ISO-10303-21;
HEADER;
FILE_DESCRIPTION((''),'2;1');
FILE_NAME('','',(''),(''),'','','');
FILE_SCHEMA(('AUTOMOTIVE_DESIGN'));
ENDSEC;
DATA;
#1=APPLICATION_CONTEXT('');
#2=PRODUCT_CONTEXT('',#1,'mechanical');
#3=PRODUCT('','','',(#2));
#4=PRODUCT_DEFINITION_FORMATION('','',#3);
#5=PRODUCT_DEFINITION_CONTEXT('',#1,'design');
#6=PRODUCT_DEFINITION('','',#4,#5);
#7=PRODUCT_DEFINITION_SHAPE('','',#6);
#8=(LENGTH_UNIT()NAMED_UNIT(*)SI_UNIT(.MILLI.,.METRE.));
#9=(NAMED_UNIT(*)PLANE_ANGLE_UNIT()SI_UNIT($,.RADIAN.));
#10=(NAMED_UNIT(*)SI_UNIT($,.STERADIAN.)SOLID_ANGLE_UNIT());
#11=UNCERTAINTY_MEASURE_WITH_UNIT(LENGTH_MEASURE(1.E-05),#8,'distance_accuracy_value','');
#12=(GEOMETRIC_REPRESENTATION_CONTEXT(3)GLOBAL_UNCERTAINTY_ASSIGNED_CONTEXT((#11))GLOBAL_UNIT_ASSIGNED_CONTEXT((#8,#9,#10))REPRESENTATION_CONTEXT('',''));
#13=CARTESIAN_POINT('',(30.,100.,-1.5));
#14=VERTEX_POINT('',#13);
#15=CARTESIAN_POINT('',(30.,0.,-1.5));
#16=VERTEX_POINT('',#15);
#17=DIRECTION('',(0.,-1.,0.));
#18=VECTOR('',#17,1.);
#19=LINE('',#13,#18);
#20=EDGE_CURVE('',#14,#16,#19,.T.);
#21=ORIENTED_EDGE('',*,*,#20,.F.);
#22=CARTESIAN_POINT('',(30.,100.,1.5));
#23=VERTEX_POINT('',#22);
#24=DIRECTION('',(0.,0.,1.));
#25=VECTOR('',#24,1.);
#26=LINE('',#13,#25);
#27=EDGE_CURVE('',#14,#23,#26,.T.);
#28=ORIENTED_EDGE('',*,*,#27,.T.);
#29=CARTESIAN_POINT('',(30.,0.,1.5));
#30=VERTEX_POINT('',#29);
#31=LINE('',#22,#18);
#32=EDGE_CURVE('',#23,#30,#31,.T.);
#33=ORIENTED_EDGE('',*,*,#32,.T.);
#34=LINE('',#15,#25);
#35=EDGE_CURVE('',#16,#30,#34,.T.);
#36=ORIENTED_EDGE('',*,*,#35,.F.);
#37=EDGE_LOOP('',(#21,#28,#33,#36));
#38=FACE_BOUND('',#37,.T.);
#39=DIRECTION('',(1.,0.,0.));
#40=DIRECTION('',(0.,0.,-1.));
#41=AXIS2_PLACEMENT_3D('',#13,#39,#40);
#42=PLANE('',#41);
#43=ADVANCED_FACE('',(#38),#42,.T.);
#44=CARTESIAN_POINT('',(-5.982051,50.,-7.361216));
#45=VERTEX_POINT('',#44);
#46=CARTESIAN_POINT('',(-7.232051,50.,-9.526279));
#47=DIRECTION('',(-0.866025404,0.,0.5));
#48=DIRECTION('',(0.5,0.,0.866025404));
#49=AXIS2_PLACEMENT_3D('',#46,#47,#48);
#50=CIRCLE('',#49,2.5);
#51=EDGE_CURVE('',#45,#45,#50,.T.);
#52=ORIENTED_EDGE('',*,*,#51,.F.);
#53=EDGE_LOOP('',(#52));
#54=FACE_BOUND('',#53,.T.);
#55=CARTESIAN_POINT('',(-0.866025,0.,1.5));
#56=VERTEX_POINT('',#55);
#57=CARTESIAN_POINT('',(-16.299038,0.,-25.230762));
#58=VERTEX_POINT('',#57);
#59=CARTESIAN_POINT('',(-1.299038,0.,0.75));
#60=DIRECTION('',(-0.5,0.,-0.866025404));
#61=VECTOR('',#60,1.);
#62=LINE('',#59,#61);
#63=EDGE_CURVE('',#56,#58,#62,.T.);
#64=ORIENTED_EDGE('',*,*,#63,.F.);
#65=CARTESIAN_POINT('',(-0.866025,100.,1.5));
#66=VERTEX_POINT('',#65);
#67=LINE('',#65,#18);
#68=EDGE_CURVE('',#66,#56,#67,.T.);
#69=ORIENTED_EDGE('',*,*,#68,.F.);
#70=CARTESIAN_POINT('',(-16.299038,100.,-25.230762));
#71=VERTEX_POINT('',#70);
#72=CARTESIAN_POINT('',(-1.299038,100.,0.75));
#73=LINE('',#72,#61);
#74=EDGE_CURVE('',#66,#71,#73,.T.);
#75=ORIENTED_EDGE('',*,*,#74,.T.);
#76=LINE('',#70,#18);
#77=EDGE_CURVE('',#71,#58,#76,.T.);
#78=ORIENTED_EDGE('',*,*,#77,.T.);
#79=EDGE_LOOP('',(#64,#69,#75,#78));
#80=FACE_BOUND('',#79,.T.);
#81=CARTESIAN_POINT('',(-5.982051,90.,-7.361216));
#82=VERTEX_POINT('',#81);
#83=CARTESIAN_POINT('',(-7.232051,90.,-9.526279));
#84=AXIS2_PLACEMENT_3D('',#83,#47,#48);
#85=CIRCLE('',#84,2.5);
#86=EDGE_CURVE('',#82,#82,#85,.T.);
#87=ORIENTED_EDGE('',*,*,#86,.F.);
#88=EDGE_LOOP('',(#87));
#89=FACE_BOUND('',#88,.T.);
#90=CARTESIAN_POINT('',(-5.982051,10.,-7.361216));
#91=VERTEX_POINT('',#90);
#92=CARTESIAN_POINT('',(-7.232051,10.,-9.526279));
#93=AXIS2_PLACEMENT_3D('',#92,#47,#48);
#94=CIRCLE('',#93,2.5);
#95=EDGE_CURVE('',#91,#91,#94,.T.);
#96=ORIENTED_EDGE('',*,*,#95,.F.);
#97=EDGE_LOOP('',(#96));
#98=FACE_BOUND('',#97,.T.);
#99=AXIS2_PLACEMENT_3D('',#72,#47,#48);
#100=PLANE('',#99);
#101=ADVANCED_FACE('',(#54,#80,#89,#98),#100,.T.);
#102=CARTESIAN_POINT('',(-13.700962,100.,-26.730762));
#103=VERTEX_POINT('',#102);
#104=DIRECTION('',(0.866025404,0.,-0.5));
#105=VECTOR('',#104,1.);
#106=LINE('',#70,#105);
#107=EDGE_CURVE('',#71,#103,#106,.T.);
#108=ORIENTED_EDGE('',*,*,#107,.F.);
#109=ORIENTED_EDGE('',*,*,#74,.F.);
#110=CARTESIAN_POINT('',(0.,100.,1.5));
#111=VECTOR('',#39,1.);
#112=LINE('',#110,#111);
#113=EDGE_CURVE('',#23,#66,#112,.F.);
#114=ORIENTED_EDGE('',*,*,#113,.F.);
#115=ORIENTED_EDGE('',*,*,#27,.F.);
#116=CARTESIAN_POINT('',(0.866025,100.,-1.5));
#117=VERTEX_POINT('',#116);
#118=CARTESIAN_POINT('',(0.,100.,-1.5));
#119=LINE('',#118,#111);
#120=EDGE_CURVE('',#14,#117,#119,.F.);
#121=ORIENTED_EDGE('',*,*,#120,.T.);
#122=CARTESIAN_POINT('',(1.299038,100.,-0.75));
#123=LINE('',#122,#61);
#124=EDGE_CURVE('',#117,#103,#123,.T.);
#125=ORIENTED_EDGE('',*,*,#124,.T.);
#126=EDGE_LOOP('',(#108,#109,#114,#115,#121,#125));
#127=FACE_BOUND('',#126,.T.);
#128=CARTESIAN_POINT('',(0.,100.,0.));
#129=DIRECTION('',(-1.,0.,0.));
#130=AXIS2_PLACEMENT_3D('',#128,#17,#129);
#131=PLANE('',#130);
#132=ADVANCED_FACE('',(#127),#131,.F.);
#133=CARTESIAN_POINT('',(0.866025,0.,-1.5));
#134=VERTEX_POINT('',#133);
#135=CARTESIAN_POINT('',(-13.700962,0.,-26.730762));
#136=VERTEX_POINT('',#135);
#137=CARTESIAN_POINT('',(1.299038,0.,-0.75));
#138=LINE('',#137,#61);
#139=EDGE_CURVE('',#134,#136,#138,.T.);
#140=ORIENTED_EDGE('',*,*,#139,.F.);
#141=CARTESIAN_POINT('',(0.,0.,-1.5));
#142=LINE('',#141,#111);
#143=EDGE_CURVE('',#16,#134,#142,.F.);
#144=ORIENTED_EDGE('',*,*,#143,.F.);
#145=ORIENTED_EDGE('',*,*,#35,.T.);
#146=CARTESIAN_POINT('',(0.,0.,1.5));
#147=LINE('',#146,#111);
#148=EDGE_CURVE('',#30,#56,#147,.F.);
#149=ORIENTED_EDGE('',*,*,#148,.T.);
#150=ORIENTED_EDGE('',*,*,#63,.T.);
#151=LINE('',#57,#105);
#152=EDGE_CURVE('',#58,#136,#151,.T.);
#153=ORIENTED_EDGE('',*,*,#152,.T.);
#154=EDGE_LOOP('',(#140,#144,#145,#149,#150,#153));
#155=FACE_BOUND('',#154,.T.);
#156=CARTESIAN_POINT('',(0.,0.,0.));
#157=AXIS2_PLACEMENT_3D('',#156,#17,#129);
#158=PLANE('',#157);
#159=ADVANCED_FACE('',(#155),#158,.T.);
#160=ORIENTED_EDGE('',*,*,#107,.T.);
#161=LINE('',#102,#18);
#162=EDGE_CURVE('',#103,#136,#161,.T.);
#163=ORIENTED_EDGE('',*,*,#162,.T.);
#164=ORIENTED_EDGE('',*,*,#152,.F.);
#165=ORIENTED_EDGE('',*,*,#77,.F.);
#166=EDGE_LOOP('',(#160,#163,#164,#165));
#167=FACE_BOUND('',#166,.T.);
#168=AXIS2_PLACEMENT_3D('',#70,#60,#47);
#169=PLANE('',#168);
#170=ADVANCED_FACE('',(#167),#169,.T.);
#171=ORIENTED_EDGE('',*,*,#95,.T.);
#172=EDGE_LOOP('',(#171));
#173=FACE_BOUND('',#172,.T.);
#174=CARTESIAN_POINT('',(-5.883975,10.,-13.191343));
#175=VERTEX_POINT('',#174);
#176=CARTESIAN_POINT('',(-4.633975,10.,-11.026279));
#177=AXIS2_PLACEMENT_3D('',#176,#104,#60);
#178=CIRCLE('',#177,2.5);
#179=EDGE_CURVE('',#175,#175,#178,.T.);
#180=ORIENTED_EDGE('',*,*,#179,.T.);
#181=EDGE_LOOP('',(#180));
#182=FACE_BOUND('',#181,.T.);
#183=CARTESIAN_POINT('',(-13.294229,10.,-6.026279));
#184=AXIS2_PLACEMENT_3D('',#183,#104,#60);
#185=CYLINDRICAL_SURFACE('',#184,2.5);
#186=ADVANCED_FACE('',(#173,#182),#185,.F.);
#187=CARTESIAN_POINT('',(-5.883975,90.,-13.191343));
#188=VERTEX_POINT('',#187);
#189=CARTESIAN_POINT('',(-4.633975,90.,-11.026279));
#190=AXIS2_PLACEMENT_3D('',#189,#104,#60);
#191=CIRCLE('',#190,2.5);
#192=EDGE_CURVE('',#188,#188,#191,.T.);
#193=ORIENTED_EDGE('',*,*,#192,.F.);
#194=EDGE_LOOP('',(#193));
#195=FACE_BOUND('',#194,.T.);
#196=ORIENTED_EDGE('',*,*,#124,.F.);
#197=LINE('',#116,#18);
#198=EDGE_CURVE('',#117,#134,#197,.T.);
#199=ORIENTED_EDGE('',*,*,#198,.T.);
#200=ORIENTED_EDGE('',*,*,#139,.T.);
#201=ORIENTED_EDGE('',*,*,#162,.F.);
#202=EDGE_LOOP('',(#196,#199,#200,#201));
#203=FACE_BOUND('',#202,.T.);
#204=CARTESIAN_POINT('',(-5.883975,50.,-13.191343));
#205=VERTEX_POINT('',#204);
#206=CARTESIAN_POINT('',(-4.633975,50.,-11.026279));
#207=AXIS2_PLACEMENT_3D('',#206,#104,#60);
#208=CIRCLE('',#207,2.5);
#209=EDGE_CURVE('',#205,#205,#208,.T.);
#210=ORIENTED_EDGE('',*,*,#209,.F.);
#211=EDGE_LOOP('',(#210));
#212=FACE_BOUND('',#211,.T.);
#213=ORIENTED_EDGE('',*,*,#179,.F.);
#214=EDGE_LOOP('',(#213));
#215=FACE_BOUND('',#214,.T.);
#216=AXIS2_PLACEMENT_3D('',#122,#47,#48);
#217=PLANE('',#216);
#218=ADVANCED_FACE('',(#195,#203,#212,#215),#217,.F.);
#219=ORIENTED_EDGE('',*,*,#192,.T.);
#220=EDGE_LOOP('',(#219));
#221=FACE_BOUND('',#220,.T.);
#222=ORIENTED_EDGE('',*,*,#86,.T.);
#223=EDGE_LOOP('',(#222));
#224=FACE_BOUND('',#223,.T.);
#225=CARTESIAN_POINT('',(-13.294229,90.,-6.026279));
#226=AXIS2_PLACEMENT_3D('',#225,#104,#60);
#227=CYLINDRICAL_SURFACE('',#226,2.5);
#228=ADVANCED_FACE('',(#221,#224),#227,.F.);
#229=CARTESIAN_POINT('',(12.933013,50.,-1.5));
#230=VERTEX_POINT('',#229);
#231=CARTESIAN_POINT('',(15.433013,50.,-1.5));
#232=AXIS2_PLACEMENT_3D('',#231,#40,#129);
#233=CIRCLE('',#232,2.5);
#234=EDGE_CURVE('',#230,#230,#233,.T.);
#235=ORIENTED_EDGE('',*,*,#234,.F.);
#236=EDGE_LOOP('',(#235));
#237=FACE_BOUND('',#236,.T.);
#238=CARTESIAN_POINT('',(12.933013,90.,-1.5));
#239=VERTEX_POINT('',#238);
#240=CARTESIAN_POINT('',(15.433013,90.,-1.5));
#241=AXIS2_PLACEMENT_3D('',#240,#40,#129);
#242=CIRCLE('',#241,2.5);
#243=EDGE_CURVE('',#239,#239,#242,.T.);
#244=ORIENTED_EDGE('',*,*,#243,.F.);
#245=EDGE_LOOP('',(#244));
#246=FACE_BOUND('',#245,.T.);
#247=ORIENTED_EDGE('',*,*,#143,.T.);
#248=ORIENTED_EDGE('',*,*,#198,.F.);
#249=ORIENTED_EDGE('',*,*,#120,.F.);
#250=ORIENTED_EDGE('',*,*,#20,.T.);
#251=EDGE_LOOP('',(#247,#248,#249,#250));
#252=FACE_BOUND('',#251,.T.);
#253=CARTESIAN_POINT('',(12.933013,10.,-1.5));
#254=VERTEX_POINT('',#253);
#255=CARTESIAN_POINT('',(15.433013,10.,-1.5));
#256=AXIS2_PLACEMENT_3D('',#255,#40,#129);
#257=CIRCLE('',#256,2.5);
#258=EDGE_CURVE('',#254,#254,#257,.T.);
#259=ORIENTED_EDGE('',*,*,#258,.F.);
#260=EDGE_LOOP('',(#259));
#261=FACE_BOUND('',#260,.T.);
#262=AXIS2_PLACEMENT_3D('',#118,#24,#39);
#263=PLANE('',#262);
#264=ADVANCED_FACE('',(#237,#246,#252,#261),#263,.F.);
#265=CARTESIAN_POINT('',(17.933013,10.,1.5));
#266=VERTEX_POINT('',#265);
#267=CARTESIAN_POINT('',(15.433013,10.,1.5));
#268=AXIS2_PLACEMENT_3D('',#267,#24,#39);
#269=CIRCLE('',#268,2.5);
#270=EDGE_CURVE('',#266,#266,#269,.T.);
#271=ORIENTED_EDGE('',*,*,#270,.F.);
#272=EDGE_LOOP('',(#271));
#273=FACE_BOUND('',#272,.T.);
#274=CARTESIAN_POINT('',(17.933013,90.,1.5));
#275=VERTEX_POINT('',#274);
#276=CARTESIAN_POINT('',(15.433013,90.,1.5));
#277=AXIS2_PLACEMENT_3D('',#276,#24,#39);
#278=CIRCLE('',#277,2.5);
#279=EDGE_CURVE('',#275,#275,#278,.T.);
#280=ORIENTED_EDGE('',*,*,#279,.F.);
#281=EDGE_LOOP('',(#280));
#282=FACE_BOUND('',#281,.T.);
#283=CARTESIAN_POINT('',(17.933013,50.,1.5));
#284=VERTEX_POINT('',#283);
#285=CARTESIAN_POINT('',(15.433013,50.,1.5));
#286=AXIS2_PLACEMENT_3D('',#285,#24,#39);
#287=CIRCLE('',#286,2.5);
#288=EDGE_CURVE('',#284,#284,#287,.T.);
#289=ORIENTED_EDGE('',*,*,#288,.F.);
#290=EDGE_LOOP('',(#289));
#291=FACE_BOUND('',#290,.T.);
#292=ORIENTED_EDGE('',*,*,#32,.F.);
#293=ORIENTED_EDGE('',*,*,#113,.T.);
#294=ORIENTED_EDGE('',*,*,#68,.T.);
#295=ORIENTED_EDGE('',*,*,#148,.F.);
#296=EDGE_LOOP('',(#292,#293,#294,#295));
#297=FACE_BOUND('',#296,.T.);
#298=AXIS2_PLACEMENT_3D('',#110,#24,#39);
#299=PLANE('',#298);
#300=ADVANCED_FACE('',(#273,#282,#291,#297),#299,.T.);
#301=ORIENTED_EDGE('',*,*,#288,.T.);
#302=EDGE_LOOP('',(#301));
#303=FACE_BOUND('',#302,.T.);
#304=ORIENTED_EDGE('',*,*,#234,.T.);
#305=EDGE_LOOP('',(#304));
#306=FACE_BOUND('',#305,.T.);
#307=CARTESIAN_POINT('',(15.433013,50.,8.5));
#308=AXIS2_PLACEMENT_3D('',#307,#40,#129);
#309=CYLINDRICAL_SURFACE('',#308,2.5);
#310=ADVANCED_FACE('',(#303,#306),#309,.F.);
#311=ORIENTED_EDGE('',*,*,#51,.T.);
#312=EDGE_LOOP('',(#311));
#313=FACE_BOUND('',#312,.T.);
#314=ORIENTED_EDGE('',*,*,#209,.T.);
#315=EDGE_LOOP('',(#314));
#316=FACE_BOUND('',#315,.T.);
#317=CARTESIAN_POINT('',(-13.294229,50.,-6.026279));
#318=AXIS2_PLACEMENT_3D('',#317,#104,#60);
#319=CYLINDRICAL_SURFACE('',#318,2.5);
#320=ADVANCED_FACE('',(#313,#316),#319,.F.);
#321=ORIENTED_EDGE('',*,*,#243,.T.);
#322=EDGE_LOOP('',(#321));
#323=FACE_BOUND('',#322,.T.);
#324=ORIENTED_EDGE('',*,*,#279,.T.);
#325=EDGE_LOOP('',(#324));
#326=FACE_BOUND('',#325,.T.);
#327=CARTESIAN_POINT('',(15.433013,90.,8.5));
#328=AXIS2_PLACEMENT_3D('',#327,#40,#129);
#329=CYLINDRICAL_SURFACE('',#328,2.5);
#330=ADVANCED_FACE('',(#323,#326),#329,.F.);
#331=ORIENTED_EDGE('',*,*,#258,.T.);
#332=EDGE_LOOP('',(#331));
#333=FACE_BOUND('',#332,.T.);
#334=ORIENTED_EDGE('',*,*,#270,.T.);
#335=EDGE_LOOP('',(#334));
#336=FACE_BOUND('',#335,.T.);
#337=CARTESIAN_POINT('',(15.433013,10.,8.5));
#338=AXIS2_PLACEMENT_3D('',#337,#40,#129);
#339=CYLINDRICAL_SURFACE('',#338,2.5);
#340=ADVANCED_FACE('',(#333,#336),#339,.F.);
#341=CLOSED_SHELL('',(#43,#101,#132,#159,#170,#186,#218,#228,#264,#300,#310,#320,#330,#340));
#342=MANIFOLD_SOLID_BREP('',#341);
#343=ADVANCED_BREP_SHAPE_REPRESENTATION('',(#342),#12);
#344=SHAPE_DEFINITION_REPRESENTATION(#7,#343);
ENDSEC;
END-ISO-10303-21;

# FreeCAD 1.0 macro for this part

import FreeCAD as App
import Part
import Sketcher
Q = App.Units.Quantity


def add_polygon(sketch, points):
    """Adds a closed chain of lines whose ends are joined by coincident constraints."""
    first, n = sketch.GeometryCount, len(points)
    for a, b in zip(points, points[1:] + points[:1]):
        sketch.addGeometry(Part.LineSegment(App.Vector(*a, 0), App.Vector(*b, 0)), False)
    for i in range(n):
        sketch.addConstraint(Sketcher.Constraint("Coincident", first + i, 2, first + (i + 1) % n, 1))

doc = App.newDocument("Part")
body = doc.addObject("PartDesign::Body", "Body")

# Sketch on XZ plane
sketch1 = body.newObject("Sketcher::SketchObject", "Sketch")
sketch1.AttachmentSupport = (doc.getObject("XZ_Plane"), [""])
sketch1.MapMode = "FlatFace"
add_polygon(sketch1, [(-16.3, -25.2), (-0.9, 1.5), (30, 1.5), (30, -1.5), (0.9, -1.5), (-13.7, -26.7)])  # lines 0-5
sketch1.addConstraint([
    Sketcher.Constraint("Horizontal", 1),
    Sketcher.Constraint("Vertical", 2),
    Sketcher.Constraint("Horizontal", 3),
    Sketcher.Constraint("Symmetric", 0, 2, 3, 2, -1, 1),
    Sketcher.Constraint("Parallel", 0, 4),
    Sketcher.Constraint("Perpendicular", 4, 5),
    Sketcher.Constraint("DistanceY", 2, 2, 2, 1, 3.0),
    Sketcher.Constraint("Angle", 0, Q("60 deg")),
    Sketcher.Constraint("Distance", 5, 3.0),
    Sketcher.Constraint("DistanceX", -1, 1, 1, 2, 30.0),
    Sketcher.Constraint("DistanceX", 4, 2, -1, 1, 13.700962),
])
pad1 = body.newObject("PartDesign::Pad", "Pad")
pad1.Profile = sketch1
pad1.Length = 100
pad1.Reversed = True

# Sketch on an angled plane
sketch2 = body.newObject("Sketcher::SketchObject", "Sketch001")
sketch2.Placement = App.Placement(App.Vector(1.299038, 0, -0.75), App.Rotation(App.Vector(-0.5, 0, -0.866025404), App.Vector(0, 1, 0), App.Vector(0.866025404, 0, -0.5), "ZXY"))
sketch2.addGeometry([
    Part.Circle(App.Vector(11.9, 90, 0), App.Vector(0, 0, 1), 2.5),
    Part.Circle(App.Vector(11.9, 50, 0), App.Vector(0, 0, 1), 2.5),
    Part.Circle(App.Vector(11.9, 10, 0), App.Vector(0, 0, 1), 2.5),
], False)
sketch2.addConstraint([
    Sketcher.Constraint("Equal", 0, 1),
    Sketcher.Constraint("Equal", 1, 2),
    Sketcher.Constraint("Vertical", 0, 3, 1, 3),
    Sketcher.Constraint("Vertical", 1, 3, 2, 3),
    Sketcher.Constraint("Diameter", 0, 5.0),
    Sketcher.Constraint("DistanceY", -1, 1, 0, 3, 90.0),
    Sketcher.Constraint("DistanceY", -1, 1, 1, 3, 50.0),
    Sketcher.Constraint("DistanceY", -1, 1, 2, 3, 10.0),
    Sketcher.Constraint("DistanceX", -1, 1, 0, 3, 11.866025),
])
pocket1 = body.newObject("PartDesign::Pocket", "Pocket")
pocket1.Profile = sketch2
pocket1.Length = 10

# Sketch on XY plane
sketch3 = body.newObject("Sketcher::SketchObject", "Sketch002")
sketch3.AttachmentSupport = (doc.getObject("XY_Plane"), [""])
sketch3.MapMode = "FlatFace"
sketch3.AttachmentOffset = App.Placement(App.Vector(0, 0, -1.5), App.Rotation())
sketch3.addGeometry([
    Part.Circle(App.Vector(15.4, 50, 0), App.Vector(0, 0, 1), 2.5),
    Part.Circle(App.Vector(15.4, 10, 0), App.Vector(0, 0, 1), 2.5),
    Part.Circle(App.Vector(15.4, 90, 0), App.Vector(0, 0, 1), 2.5),
], False)
sketch3.addConstraint([
    Sketcher.Constraint("Equal", 0, 1),
    Sketcher.Constraint("Equal", 1, 2),
    Sketcher.Constraint("Vertical", 0, 3, 1, 3),
    Sketcher.Constraint("Vertical", 1, 3, 2, 3),
    Sketcher.Constraint("Diameter", 0, 5.0),
    Sketcher.Constraint("DistanceY", -1, 1, 0, 3, 50.0),
    Sketcher.Constraint("DistanceY", -1, 1, 1, 3, 10.0),
    Sketcher.Constraint("DistanceY", -1, 1, 2, 3, 90.0),
    Sketcher.Constraint("DistanceX", -1, 1, 0, 3, 15.433013),
])
pocket2 = body.newObject("PartDesign::Pocket", "Pocket001")
pocket2.Profile = sketch3
pocket2.Length = 10
pocket2.Reversed = True

doc.recompute()
